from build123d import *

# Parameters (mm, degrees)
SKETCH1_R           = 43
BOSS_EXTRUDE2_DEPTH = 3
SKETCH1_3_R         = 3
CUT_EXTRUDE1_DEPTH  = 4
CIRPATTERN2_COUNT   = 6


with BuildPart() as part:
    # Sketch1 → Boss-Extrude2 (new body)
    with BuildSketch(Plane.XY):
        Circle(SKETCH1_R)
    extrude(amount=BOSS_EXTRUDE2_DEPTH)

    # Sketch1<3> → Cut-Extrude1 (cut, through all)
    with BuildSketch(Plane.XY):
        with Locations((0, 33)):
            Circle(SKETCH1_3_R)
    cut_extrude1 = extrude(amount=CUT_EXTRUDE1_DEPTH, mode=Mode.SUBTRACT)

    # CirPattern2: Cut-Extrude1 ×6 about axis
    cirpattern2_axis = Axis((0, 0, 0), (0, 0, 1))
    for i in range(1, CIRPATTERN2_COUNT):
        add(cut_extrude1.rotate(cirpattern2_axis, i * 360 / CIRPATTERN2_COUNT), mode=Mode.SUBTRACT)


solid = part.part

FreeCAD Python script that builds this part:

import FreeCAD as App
import Part
import Sketcher
Q = App.Units.Quantity

doc = App.newDocument("Part")
body = doc.addObject("PartDesign::Body", "Body")

# Sketch on XY plane
sketch1 = doc.addObject("Sketcher::SketchObject", "Sketch")
body.addObject(sketch1)
sketch1.AttachmentSupport = (doc.XY_Plane, [""])
sketch1.MapMode = "FlatFace"
sketch1.addGeometry(Part.Circle(App.Vector(0, 0, 0), App.Vector(0, 0, 1), 43), False)
sketch1.addConstraint([
    Sketcher.Constraint("Coincident", 0, 3, -1, 1),
    Sketcher.Constraint("Diameter", 0, Q("86 mm")),
])
pad1 = doc.addObject("PartDesign::Pad", "Pad")
body.addObject(pad1)
pad1.Profile = sketch1
pad1.Length = 3

# Sketch on XY plane
sketch2 = doc.addObject("Sketcher::SketchObject", "Sketch001")
body.addObject(sketch2)
sketch2.AttachmentSupport = (doc.XY_Plane, [""])
sketch2.MapMode = "FlatFace"
sketch2.addGeometry(Part.Circle(App.Vector(0, 33, 0), App.Vector(0, 0, 1), 3), False)
sketch2.addConstraint([
    Sketcher.Constraint("PointOnObject", 0, 3, -2),
    Sketcher.Constraint("Diameter", 0, Q("6 mm")),
    Sketcher.Constraint("DistanceY", -1, 1, 0, 3, Q("33 mm")),
])
pocket1 = doc.addObject("PartDesign::Pocket", "Pocket")
body.addObject(pocket1)
pocket1.Profile = sketch2
pocket1.Type = "ThroughAll"
pocket1.Reversed = True
doc.recompute()

polarpattern = doc.addObject("PartDesign::PolarPattern", "PolarPattern")
body.addObject(polarpattern)
polarpattern.Originals = [pocket1]
polarpattern.Axis = (doc.Z_Axis, [""])
polarpattern.Angle = 360
polarpattern.Occurrences = 6
body.Tip = polarpattern

doc.recompute()
